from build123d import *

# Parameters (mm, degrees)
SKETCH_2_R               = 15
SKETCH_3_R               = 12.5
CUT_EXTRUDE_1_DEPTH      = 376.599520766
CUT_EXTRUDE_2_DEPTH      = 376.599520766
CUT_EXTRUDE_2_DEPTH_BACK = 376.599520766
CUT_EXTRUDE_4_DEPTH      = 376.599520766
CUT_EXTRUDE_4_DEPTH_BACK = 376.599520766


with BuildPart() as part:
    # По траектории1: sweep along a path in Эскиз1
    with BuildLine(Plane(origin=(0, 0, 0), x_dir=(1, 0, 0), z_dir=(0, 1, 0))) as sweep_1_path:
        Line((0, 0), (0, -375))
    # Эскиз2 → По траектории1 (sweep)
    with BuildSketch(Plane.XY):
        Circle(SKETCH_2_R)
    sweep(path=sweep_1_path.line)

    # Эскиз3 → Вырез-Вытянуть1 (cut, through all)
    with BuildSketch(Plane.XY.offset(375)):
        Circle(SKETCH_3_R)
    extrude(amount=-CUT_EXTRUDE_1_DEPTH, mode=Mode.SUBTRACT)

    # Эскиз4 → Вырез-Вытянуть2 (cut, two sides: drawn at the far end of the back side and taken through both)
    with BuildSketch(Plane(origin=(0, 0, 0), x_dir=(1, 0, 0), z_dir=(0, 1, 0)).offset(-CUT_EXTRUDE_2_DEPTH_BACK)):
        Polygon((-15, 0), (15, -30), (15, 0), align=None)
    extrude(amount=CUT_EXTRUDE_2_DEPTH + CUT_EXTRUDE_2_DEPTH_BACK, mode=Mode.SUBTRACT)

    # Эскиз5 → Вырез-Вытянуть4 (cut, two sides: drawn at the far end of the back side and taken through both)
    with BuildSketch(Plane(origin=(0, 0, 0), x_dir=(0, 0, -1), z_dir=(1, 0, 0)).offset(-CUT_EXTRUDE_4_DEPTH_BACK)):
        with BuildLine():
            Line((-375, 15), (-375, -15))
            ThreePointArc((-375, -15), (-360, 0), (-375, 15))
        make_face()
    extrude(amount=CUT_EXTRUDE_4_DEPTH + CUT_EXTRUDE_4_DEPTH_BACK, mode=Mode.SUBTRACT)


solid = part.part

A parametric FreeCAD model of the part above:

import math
import FreeCAD as App
import Part
import Sketcher

doc = App.newDocument("Part")
body = doc.addObject("PartDesign::Body", "Body")

# Sketch on XY plane
sketch1 = body.newObject("Sketcher::SketchObject", "Sketch")
sketch1.AttachmentSupport = (doc.getObject("XY_Plane"), [""])
sketch1.MapMode = "FlatFace"
sketch1.addGeometry(Part.Circle(App.Vector(0, 0, 0), App.Vector(0, 0, 1), 15), False)
sketch1.addConstraint(Sketcher.Constraint("Coincident", 0, 3, -1, 1))
sketch1.addConstraint(Sketcher.Constraint("Diameter", 0, 30.0))

# Sketch on XZ plane
sketch2 = body.newObject("Sketcher::SketchObject", "Sketch001")
sketch2.AttachmentSupport = (doc.getObject("XZ_Plane"), [""])
sketch2.MapMode = "FlatFace"
sketch2.addGeometry(Part.LineSegment(App.Vector(0, 0, 0), App.Vector(0, 375, 0)), False)
sketch2.addConstraint(Sketcher.Constraint("Vertical", 0))
sketch2.addConstraint(Sketcher.Constraint("Coincident", 0, 1, -1, 1))
sketch2.addConstraint(Sketcher.Constraint("DistanceY", 0, 1, 0, 2, 375.0))
doc.recompute()

additivepipe = body.newObject("PartDesign::AdditivePipe", "AdditivePipe")
additivepipe.Profile = sketch1
additivepipe.Spine = (sketch2, ["Edge1"])

# Sketch on XY plane
sketch3 = body.newObject("Sketcher::SketchObject", "Sketch002")
sketch3.AttachmentSupport = (doc.getObject("XY_Plane"), [""])
sketch3.MapMode = "FlatFace"
sketch3.AttachmentOffset = App.Placement(App.Vector(0, 0, 375), App.Rotation())
sketch3.addGeometry(Part.Circle(App.Vector(0, 0, 0), App.Vector(0, 0, 1), 12), False)
sketch3.addConstraint(Sketcher.Constraint("Coincident", 0, 3, -1, 1))
sketch3.addConstraint(Sketcher.Constraint("Diameter", 0, 25.0))
pocket1 = body.newObject("PartDesign::Pocket", "Pocket")
pocket1.Profile = sketch3
pocket1.Type = "ThroughAll"

# Sketch on XZ plane
sketch4 = body.newObject("Sketcher::SketchObject", "Sketch003")
sketch4.AttachmentSupport = (doc.getObject("XZ_Plane"), [""])
sketch4.MapMode = "FlatFace"
sketch4.addGeometry(Part.LineSegment(App.Vector(-15, 0, 0), App.Vector(15, 30, 0)), False)
sketch4.addGeometry(Part.LineSegment(App.Vector(15, 30, 0), App.Vector(15, 0, 0)), False)
sketch4.addGeometry(Part.LineSegment(App.Vector(15, 0, 0), App.Vector(-15, 0, 0)), False)
sketch4.addConstraint(Sketcher.Constraint("Coincident", 0, 2, 1, 1))
sketch4.addConstraint(Sketcher.Constraint("Coincident", 1, 2, 2, 1))
sketch4.addConstraint(Sketcher.Constraint("Coincident", 2, 2, 0, 1))
sketch4.addConstraint(Sketcher.Constraint("Vertical", 1))
sketch4.addConstraint(Sketcher.Constraint("Horizontal", 2))
sketch4.addConstraint(Sketcher.Constraint("Symmetric", 1, 2, 2, 2, -1, 1))
sketch4.addConstraint(Sketcher.Constraint("Equal", 2, 1))
sketch4.addConstraint(Sketcher.Constraint("DistanceX", 2, 2, 2, 1, 30.0))
pocket2 = body.newObject("PartDesign::Pocket", "Pocket001")
pocket2.Profile = sketch4
pocket2.Type = "ThroughAll"
pocket2.Midplane = True

# Sketch on YZ plane
sketch5 = body.newObject("Sketcher::SketchObject", "Sketch004")
sketch5.AttachmentSupport = (doc.getObject("YZ_Plane"), [""])
sketch5.MapMode = "FlatFace"
sketch5.addGeometry(Part.LineSegment(App.Vector(15, 375, 0), App.Vector(-15, 375, 0)), False)
sketch5.addGeometry(Part.ArcOfCircle(Part.Circle(App.Vector(0, 375, 0), App.Vector(0, 0, 1), 15), math.radians(180), math.radians(360)), False)
sketch5.addConstraint(Sketcher.Constraint("Coincident", 0, 1, 1, 2))
sketch5.addConstraint(Sketcher.Constraint("Coincident", 1, 1, 0, 2))
sketch5.addConstraint(Sketcher.Constraint("Horizontal", 0))
sketch5.addConstraint(Sketcher.Constraint("PointOnObject", 1, 3, -2))
sketch5.addConstraint(Sketcher.Constraint("Horizontal", 1, 3, 0, 1))
sketch5.addConstraint(Sketcher.Constraint("Radius", 1, 15.0))
sketch5.addConstraint(Sketcher.Constraint("DistanceY", -1, 1, 1, 3, 375.0))
pocket3 = body.newObject("PartDesign::Pocket", "Pocket002")
pocket3.Profile = sketch5
pocket3.Type = "ThroughAll"
pocket3.Midplane = True

doc.recompute()
